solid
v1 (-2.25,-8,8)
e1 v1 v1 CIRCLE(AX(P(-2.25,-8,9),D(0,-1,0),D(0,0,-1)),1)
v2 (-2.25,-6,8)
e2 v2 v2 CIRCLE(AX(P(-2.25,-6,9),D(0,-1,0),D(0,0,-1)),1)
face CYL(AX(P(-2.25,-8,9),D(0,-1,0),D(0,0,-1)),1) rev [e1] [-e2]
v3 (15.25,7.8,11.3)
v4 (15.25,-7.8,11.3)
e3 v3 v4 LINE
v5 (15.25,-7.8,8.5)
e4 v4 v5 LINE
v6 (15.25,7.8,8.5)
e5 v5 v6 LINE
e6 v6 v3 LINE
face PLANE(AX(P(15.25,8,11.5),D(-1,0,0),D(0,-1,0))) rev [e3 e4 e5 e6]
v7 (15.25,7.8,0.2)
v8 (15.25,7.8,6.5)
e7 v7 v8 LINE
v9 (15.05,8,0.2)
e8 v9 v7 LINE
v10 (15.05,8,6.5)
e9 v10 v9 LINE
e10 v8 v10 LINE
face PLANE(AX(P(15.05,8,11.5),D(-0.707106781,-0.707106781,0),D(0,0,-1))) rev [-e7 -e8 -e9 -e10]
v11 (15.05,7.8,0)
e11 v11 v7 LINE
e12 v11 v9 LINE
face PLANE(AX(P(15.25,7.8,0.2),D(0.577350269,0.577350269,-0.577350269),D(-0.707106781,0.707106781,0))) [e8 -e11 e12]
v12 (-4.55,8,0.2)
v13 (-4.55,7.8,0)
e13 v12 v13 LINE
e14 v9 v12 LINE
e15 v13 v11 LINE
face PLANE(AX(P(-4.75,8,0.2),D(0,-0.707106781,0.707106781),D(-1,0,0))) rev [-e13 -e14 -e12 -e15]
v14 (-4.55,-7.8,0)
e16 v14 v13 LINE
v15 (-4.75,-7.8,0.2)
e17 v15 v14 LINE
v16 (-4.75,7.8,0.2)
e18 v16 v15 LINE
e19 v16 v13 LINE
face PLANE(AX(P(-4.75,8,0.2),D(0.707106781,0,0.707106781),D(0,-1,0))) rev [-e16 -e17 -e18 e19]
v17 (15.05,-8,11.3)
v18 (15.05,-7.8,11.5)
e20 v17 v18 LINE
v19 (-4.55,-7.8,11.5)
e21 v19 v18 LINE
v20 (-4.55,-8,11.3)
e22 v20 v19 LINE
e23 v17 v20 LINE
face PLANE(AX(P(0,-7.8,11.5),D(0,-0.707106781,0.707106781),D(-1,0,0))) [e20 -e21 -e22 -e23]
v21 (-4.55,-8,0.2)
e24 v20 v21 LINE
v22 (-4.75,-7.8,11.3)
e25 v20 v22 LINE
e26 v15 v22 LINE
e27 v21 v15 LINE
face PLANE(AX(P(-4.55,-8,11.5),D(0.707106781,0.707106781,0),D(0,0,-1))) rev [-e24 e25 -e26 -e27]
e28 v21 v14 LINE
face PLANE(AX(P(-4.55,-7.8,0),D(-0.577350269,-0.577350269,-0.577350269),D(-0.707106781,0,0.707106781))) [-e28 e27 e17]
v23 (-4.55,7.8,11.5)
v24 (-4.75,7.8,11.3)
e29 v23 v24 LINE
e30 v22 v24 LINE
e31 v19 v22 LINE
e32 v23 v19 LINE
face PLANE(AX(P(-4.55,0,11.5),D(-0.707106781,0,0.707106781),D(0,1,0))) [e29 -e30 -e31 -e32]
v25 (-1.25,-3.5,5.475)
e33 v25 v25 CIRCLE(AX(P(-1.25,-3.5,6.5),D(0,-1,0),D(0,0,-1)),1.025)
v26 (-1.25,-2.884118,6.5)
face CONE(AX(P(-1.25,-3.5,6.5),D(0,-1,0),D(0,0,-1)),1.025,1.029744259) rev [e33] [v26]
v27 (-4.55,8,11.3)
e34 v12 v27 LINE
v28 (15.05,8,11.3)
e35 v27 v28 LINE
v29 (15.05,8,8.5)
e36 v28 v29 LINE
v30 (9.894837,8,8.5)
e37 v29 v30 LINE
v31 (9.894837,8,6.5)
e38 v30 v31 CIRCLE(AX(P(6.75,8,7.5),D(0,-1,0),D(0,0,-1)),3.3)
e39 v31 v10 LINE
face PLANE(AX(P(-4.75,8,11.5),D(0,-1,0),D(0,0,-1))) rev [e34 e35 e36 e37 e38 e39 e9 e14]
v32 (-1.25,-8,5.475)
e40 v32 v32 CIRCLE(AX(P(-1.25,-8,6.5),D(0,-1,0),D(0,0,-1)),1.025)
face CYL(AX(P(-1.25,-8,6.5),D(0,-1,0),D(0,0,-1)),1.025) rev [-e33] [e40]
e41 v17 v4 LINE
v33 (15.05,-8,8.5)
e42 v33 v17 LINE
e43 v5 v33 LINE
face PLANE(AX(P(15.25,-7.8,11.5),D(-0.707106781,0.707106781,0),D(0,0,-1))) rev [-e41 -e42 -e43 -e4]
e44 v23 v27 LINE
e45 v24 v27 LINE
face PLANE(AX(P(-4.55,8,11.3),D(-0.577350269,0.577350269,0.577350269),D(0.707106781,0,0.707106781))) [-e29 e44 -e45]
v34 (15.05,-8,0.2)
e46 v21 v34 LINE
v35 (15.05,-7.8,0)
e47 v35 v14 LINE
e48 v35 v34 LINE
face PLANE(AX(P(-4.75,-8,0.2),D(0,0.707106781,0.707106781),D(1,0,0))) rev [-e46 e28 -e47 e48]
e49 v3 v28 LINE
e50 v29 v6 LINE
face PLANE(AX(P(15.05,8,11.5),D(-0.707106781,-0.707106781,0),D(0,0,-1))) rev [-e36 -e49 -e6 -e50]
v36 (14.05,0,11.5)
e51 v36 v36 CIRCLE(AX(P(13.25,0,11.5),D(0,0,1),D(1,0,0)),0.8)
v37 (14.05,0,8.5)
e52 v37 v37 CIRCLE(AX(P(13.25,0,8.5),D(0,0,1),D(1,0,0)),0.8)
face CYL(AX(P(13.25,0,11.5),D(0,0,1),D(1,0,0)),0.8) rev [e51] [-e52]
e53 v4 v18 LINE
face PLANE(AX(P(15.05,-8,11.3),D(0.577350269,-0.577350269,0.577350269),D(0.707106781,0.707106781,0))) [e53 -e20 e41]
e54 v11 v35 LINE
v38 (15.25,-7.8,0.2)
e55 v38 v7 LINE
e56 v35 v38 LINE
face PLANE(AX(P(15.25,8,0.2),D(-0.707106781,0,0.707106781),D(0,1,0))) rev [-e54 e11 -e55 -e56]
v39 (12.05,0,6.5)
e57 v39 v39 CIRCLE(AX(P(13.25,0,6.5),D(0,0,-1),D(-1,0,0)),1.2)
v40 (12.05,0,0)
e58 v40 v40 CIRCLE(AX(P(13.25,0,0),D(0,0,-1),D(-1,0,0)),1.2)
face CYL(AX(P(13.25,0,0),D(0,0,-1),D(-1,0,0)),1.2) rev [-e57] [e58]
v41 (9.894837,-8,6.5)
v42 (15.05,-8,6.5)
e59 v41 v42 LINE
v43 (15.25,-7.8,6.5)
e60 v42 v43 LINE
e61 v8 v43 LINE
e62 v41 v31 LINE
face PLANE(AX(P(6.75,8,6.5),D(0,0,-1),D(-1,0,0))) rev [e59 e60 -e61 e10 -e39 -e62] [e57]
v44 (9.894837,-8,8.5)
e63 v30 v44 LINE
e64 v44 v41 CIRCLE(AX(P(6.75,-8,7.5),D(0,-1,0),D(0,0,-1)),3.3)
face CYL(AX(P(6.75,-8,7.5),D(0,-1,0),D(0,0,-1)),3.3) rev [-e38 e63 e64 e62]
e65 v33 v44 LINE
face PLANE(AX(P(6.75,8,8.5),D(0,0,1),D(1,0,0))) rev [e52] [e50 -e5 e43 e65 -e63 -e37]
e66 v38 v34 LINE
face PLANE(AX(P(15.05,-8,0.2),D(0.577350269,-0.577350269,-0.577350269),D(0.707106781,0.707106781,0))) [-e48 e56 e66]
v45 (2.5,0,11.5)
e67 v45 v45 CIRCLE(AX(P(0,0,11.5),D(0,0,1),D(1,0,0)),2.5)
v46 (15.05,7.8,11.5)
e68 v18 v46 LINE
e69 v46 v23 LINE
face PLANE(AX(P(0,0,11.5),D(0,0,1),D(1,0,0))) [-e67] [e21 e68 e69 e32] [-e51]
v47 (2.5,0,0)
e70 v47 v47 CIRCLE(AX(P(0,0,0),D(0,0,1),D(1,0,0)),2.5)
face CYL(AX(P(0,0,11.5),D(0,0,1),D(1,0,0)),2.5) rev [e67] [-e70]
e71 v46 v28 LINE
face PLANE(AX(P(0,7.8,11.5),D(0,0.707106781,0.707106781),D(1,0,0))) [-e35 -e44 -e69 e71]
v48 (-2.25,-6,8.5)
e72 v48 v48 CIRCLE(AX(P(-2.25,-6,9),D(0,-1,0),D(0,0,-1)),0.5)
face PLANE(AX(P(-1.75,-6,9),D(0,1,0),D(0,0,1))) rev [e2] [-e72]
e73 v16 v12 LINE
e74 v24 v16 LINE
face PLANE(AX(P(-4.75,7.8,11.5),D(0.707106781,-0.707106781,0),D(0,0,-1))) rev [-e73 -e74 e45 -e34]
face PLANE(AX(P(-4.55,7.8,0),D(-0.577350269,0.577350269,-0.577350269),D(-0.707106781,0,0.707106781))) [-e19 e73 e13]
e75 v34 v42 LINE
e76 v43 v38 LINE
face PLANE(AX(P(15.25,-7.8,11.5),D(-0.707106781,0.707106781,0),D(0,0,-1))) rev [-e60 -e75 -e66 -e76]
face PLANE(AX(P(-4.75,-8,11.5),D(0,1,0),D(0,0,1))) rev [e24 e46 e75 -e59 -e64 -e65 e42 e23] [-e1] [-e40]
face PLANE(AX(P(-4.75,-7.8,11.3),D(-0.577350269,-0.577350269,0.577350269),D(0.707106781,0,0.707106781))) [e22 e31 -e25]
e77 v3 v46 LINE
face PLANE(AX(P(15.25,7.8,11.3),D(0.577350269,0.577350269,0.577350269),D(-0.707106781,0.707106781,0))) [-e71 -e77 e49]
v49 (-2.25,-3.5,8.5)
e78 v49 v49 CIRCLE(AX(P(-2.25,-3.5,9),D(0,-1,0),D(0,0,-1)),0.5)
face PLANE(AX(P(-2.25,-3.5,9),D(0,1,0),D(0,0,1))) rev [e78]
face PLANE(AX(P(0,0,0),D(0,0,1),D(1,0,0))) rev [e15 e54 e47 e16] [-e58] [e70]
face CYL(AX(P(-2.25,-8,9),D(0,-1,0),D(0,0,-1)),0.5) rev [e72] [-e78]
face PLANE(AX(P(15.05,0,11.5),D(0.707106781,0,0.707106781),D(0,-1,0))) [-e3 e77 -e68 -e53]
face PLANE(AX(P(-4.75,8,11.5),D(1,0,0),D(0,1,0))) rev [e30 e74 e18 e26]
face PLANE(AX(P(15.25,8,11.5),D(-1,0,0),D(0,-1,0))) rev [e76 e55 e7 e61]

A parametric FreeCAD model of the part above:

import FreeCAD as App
import Part
import Sketcher
from FreeCAD import Vector


def edges_at(feature, points):
    """Names of the edges that pass closest to the given points."""
    edges = feature.Shape.Edges
    near = lambda p: min(range(len(edges)), key=lambda i: edges[i].distToShape(Part.Vertex(*p))[0])
    return sorted({f"Edge{near(p) + 1}" for p in points})

doc = App.newDocument("Part")
params = doc.addObject("Spreadsheet::Sheet", "Params")
for row, (alias, value) in enumerate([
    ("sketch1_width", "20 mm"),
    ("sketch1_height", "16 mm"),
    ("pad1_length", "11.5 mm"),
    ("sketch2_diameter", "5 mm"),
    ("hole_diameter", "5 mm"),
    ("sketch3_diameter", "1 mm"),
    ("hole2_diameter", "1 mm"),
    ("hole2_depth", "4.5 mm"),
    ("hole2_cbore_diameter", "2 mm"),
    ("hole2_cbore_depth", "2 mm"),
    ("sketch4_diameter", "2.05 mm"),
    ("hole3_diameter", "2.05 mm"),
    ("hole3_depth", "4.5 mm"),
    ("sketch5_diameter", "6.6 mm"),
    ("hole4_diameter", "6.6 mm"),
    ("sketch6_height", "2 mm"),
    ("sketch7_diameter", "1.6 mm"),
    ("hole5_diameter", "1.6 mm"),
    ("hole5_depth", "3 mm"),
    ("sketch8_diameter", "2.4 mm"),
    ("hole6_diameter", "2.4 mm"),
    ("hole6_depth", "6.5 mm"),
    ("chamfer_size", "0.2 mm"),
], start=1):
    params.set(f"A{row}", alias)
    params.set(f"B{row}", "=" + value)
    params.setAlias(f"B{row}", alias)

body = doc.addObject("PartDesign::Body", "Body")

sketch1 = body.newObject("Sketcher::SketchObject", "Sketch")
sketch1.AttachmentSupport = (doc.getObject("XY_Plane"), [""])
sketch1.MapMode = "FlatFace"
sketch1.addGeometry(Part.LineSegment(Vector(-5, 8, 0), Vector(-5, -8, 0)), False)
sketch1.addGeometry(Part.LineSegment(Vector(-5, -8, 0), Vector(15, -8, 0)), False)
sketch1.addGeometry(Part.LineSegment(Vector(15, -8, 0), Vector(15, 8, 0)), False)
sketch1.addGeometry(Part.LineSegment(Vector(15, 8, 0), Vector(-5, 8, 0)), False)
sketch1.addConstraint(Sketcher.Constraint("Coincident", 0, 2, 1, 1))
sketch1.addConstraint(Sketcher.Constraint("Coincident", 1, 2, 2, 1))
sketch1.addConstraint(Sketcher.Constraint("Coincident", 2, 2, 3, 1))
sketch1.addConstraint(Sketcher.Constraint("Coincident", 3, 2, 0, 1))
sketch1.addConstraint(Sketcher.Constraint("Vertical", 0))
sketch1.addConstraint(Sketcher.Constraint("Horizontal", 1))
sketch1.addConstraint(Sketcher.Constraint("Vertical", 2))
sketch1.addConstraint(Sketcher.Constraint("Horizontal", 3))
sketch1.addConstraint(Sketcher.Constraint("DistanceX", 1, 1, 1, 2, 20.0))
sketch1.addConstraint(Sketcher.Constraint("DistanceY", 0, 2, 0, 1, 16.0))
sketch1.addConstraint(Sketcher.Constraint("DistanceY", 0, 2, -1, 1, 8.0))
sketch1.addConstraint(Sketcher.Constraint("DistanceX", 0, 2, -1, 1, 4.75))
sketch1.setExpression("Constraints[8]", "Params.sketch1_width")
sketch1.setExpression("Constraints[9]", "Params.sketch1_height")
pad1 = body.newObject("PartDesign::Pad", "Pad")
pad1.Profile = sketch1
pad1.setExpression("Length", "Params.pad1_length")

sketch2 = body.newObject("Sketcher::SketchObject", "Sketch001")
sketch2.AttachmentSupport = (doc.getObject("XY_Plane"), [""])
sketch2.MapMode = "FlatFace"
sketch2.AttachmentOffset = App.Placement(Vector(0, 0, 11.5), App.Rotation())
sketch2.addGeometry(Part.Circle(Vector(0, 0, 0), Vector(0, 0, 1), 2.5), False)
sketch2.addConstraint(Sketcher.Constraint("Coincident", 0, 3, -1, 1))
sketch2.addConstraint(Sketcher.Constraint("Diameter", 0, 5.0))
sketch2.setExpression("Constraints[1]", "Params.sketch2_diameter")
doc.recompute()
hole = body.newObject("PartDesign::Hole", "Hole")
hole.Profile = sketch2
hole.ThreadType = "None"
hole.setExpression("Diameter", "Params.hole_diameter")
hole.DepthType = "ThroughAll"

sketch3 = body.newObject("Sketcher::SketchObject", "Sketch002")
sketch3.AttachmentSupport = (doc.getObject("XZ_Plane"), [""])
sketch3.MapMode = "FlatFace"
sketch3.AttachmentOffset = App.Placement(Vector(0, 0, 8), App.Rotation())
sketch3.addGeometry(Part.Circle(Vector(-2.2, 9, 0), Vector(0, 0, 1), 0.5), False)
sketch3.addConstraint(Sketcher.Constraint("Diameter", 0, 1.0))
sketch3.addConstraint(Sketcher.Constraint("DistanceY", -1, 1, 0, 3, 9.0))
sketch3.addConstraint(Sketcher.Constraint("DistanceX", 0, 3, -1, 1, 2.25))
sketch3.setExpression("Constraints[0]", "Params.sketch3_diameter")
doc.recompute()
hole2 = body.newObject("PartDesign::Hole", "Hole001")
hole2.Profile = sketch3
hole2.ThreadType = "None"
hole2.setExpression("Diameter", "Params.hole2_diameter")
hole2.DepthType = "Dimension"
hole2.setExpression("Depth", "Params.hole2_depth")
hole2.DrillPoint = "Flat"
hole2.HoleCutType = "Counterbore"
hole2.setExpression("HoleCutDiameter", "Params.hole2_cbore_diameter")
hole2.setExpression("HoleCutDepth", "Params.hole2_cbore_depth")

sketch4 = body.newObject("Sketcher::SketchObject", "Sketch003")
sketch4.AttachmentSupport = (doc.getObject("XZ_Plane"), [""])
sketch4.MapMode = "FlatFace"
sketch4.AttachmentOffset = App.Placement(Vector(0, 0, 8), App.Rotation())
sketch4.addGeometry(Part.Circle(Vector(-1.2, 6.5, 0), Vector(0, 0, 1), 1), False)
sketch4.addConstraint(Sketcher.Constraint("Diameter", 0, 2.05))
sketch4.addConstraint(Sketcher.Constraint("DistanceY", -1, 1, 0, 3, 6.5))
sketch4.addConstraint(Sketcher.Constraint("DistanceX", 0, 3, -1, 1, 1.25))
sketch4.setExpression("Constraints[0]", "Params.sketch4_diameter")
doc.recompute()
hole3 = body.newObject("PartDesign::Hole", "Hole002")
hole3.Profile = sketch4
hole3.ThreadType = "None"
hole3.setExpression("Diameter", "Params.hole3_diameter")
hole3.DepthType = "Dimension"
hole3.setExpression("Depth", "Params.hole3_depth")
hole3.DrillPoint = "Angled"
hole3.DrillPointAngle = 118

sketch5 = body.newObject("Sketcher::SketchObject", "Sketch004")
sketch5.AttachmentSupport = (doc.getObject("XZ_Plane"), [""])
sketch5.MapMode = "FlatFace"
sketch5.AttachmentOffset = App.Placement(Vector(0, 0, 8), App.Rotation())
sketch5.addGeometry(Part.Circle(Vector(6.8, 7.5, 0), Vector(0, 0, 1), 3.3), False)
sketch5.addConstraint(Sketcher.Constraint("Diameter", 0, 6.6))
sketch5.addConstraint(Sketcher.Constraint("DistanceY", -1, 1, 0, 3, 7.5))
sketch5.addConstraint(Sketcher.Constraint("DistanceX", -1, 1, 0, 3, 6.75))
sketch5.setExpression("Constraints[0]", "Params.sketch5_diameter")
doc.recompute()
hole4 = body.newObject("PartDesign::Hole", "Hole003")
hole4.Profile = sketch5
hole4.ThreadType = "None"
hole4.setExpression("Diameter", "Params.hole4_diameter")
hole4.DepthType = "ThroughAll"

sketch6 = body.newObject("Sketcher::SketchObject", "Sketch005")
sketch6.AttachmentSupport = (doc.getObject("XZ_Plane"), [""])
sketch6.MapMode = "FlatFace"
sketch6.AttachmentOffset = App.Placement(Vector(0, 0, 8), App.Rotation())
sketch6.addGeometry(Part.LineSegment(Vector(6.8, 8.5, 0), Vector(6.8, 6.5, 0)), False)
sketch6.addGeometry(Part.LineSegment(Vector(6.8, 6.5, 0), Vector(18.2, 6.5, 0)), False)
sketch6.addGeometry(Part.LineSegment(Vector(18.2, 6.5, 0), Vector(18.2, 8.5, 0)), False)
sketch6.addGeometry(Part.LineSegment(Vector(18.2, 8.5, 0), Vector(6.8, 8.5, 0)), False)
sketch6.addConstraint(Sketcher.Constraint("Coincident", 0, 2, 1, 1))
sketch6.addConstraint(Sketcher.Constraint("Coincident", 1, 2, 2, 1))
sketch6.addConstraint(Sketcher.Constraint("Coincident", 2, 2, 3, 1))
sketch6.addConstraint(Sketcher.Constraint("Coincident", 3, 2, 0, 1))
sketch6.addConstraint(Sketcher.Constraint("Vertical", 0))
sketch6.addConstraint(Sketcher.Constraint("Horizontal", 1))
sketch6.addConstraint(Sketcher.Constraint("Vertical", 2))
sketch6.addConstraint(Sketcher.Constraint("Horizontal", 3))
sketch6.addConstraint(Sketcher.Constraint("DistanceY", 0, 2, 0, 1, 2.0))
sketch6.addConstraint(Sketcher.Constraint("DistanceY", -1, 1, 0, 2, 6.5))
sketch6.addConstraint(Sketcher.Constraint("DistanceX", -1, 1, 0, 2, 6.75))
sketch6.addConstraint(Sketcher.Constraint("DistanceX", 1, 1, 1, 2, 11.4872))
sketch6.setExpression("Constraints[8]", "Params.sketch6_height")
pocket1 = body.newObject("PartDesign::Pocket", "Pocket")
pocket1.Profile = sketch6
pocket1.Type = "ThroughAll"

sketch7 = body.newObject("Sketcher::SketchObject", "Sketch006")
sketch7.AttachmentSupport = (doc.getObject("XY_Plane"), [""])
sketch7.MapMode = "FlatFace"
sketch7.AttachmentOffset = App.Placement(Vector(0, 0, 11.5), App.Rotation())
sketch7.addGeometry(Part.Circle(Vector(13.2, 0, 0), Vector(0, 0, 1), 0.8), False)
sketch7.addConstraint(Sketcher.Constraint("PointOnObject", 0, 3, -1))
sketch7.addConstraint(Sketcher.Constraint("Diameter", 0, 1.6))
sketch7.addConstraint(Sketcher.Constraint("DistanceX", -1, 1, 0, 3, 13.25))
sketch7.setExpression("Constraints[1]", "Params.sketch7_diameter")
doc.recompute()
hole5 = body.newObject("PartDesign::Hole", "Hole004")
hole5.Profile = sketch7
hole5.ThreadType = "None"
hole5.setExpression("Diameter", "Params.hole5_diameter")
hole5.DepthType = "Dimension"
hole5.setExpression("Depth", "Params.hole5_depth")
hole5.DrillPoint = "Flat"

sketch8 = body.newObject("Sketcher::SketchObject", "Sketch007")
sketch8.AttachmentSupport = (doc.getObject("XY_Plane"), [""])
sketch8.MapMode = "FlatFace"
sketch8.addGeometry(Part.Circle(Vector(13.2, 0, 0), Vector(0, 0, 1), 1.2), False)
sketch8.addConstraint(Sketcher.Constraint("PointOnObject", 0, 3, -1))
sketch8.addConstraint(Sketcher.Constraint("Diameter", 0, 2.4))
sketch8.addConstraint(Sketcher.Constraint("DistanceX", -1, 1, 0, 3, 13.25))
sketch8.setExpression("Constraints[1]", "Params.sketch8_diameter")
doc.recompute()
hole6 = body.newObject("PartDesign::Hole", "Hole005")
hole6.Profile = sketch8
hole6.ThreadType = "None"
hole6.setExpression("Diameter", "Params.hole6_diameter")
hole6.DepthType = "Dimension"
hole6.setExpression("Depth", "Params.hole6_depth")
hole6.DrillPoint = "Flat"
hole6.Reversed = True
doc.recompute()

chamfer = body.newObject("PartDesign::Chamfer", "Chamfer")
chamfer.Base = (hole6, edges_at(hole6, [
    (15.25, 0, 11.5),
    (5.25, 8, 11.5),
    (15.25, 8, 3.25),
    (15.25, -8, 3.25),
    (-4.75, 0, 11.5),
    (5.25, 8, 0),
    (15.25, 0, 0),
    (5.25, -8, 0),
    (-4.75, 0, 0),
    (5.25, -8, 11.5),
    (-4.75, 8, 5.75),
    (15.25, 8, 10),
    (15.25, -8, 10),
    (-4.75, -8, 5.75),
]))
chamfer.setExpression("Size", "Params.chamfer_size")

doc.recompute()
